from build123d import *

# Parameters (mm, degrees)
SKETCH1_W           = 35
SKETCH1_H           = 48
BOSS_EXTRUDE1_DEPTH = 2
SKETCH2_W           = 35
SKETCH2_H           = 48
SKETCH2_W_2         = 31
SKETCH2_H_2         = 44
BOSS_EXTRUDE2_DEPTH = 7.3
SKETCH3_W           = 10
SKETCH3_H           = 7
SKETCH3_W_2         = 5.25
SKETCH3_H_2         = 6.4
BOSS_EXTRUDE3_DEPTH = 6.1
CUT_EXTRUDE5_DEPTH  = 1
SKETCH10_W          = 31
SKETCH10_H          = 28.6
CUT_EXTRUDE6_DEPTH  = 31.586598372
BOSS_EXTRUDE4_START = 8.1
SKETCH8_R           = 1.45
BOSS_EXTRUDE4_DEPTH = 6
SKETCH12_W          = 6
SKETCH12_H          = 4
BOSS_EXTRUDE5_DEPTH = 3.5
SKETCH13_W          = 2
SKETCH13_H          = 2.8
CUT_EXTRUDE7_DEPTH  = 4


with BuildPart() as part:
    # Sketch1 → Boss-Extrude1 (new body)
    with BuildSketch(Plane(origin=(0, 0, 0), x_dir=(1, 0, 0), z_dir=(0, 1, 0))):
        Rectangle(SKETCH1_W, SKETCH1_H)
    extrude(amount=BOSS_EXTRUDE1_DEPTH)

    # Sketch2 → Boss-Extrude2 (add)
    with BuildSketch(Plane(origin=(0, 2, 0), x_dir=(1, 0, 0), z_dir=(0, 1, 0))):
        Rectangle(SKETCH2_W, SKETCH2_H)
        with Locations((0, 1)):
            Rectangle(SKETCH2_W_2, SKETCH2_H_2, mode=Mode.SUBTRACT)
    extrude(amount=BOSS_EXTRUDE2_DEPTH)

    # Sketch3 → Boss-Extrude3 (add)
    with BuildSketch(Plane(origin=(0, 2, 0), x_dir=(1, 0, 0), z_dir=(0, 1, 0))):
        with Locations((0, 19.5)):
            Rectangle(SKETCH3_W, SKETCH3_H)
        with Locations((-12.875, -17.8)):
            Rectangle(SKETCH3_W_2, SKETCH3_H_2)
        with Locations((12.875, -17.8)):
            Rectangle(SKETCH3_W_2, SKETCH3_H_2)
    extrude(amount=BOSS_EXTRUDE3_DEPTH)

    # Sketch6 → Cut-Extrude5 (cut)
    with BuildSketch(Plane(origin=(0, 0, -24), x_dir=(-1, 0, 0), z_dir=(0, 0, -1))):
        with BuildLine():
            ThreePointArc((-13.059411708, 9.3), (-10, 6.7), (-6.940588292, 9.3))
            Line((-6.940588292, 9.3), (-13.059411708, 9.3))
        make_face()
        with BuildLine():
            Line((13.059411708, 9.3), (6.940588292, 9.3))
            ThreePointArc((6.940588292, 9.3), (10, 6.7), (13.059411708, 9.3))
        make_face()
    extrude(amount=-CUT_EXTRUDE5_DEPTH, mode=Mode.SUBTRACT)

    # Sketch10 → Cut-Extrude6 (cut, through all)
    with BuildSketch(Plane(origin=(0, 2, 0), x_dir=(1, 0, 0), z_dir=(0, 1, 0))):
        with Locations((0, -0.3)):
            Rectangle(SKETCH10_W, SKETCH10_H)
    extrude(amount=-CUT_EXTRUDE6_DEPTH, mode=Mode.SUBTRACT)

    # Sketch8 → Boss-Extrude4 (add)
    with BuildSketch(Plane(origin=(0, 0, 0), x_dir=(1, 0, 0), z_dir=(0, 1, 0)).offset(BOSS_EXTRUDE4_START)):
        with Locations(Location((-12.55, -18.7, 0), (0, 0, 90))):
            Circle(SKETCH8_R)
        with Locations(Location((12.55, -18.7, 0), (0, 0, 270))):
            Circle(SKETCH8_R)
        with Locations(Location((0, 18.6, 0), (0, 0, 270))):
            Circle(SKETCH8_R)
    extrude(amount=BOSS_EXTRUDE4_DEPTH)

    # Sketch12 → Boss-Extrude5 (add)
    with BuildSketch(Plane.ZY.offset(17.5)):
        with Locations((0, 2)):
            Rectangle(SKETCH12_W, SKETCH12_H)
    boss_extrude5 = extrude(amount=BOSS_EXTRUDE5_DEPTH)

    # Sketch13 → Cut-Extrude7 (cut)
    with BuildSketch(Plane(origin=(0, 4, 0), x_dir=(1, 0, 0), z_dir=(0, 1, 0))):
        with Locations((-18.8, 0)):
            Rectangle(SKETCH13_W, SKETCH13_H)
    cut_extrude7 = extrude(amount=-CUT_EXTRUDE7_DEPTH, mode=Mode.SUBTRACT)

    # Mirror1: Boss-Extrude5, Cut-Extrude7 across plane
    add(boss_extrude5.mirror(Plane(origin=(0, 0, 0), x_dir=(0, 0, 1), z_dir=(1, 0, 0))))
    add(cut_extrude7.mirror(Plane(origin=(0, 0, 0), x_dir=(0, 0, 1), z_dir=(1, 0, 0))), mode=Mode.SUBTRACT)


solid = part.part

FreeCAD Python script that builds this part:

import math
import FreeCAD as App
import Part
import Sketcher
from FreeCAD import Vector
Q = App.Units.Quantity

doc = App.newDocument("Part")
body = doc.addObject("PartDesign::Body", "Body")

# Sketch on XZ plane
sketch1 = body.newObject("Sketcher::SketchObject", "Sketch")
sketch1.AttachmentSupport = (doc.getObject("XZ_Plane"), [""])
sketch1.MapMode = "FlatFace"
sketch1.addGeometry(Part.LineSegment(Vector(-18, -24, 0), Vector(-18, 24, 0)), False)
sketch1.addGeometry(Part.LineSegment(Vector(-18, 24, 0), Vector(18, 24, 0)), False)
sketch1.addGeometry(Part.LineSegment(Vector(18, 24, 0), Vector(18, -24, 0)), False)
sketch1.addGeometry(Part.LineSegment(Vector(18, -24, 0), Vector(-18, -24, 0)), False)
sketch1.addConstraint(Sketcher.Constraint("Coincident", 0, 2, 1, 1))
sketch1.addConstraint(Sketcher.Constraint("Coincident", 1, 2, 2, 1))
sketch1.addConstraint(Sketcher.Constraint("Coincident", 2, 2, 3, 1))
sketch1.addConstraint(Sketcher.Constraint("Coincident", 3, 2, 0, 1))
sketch1.addConstraint(Sketcher.Constraint("Vertical", 0))
sketch1.addConstraint(Sketcher.Constraint("Horizontal", 1))
sketch1.addConstraint(Sketcher.Constraint("Vertical", 2))
sketch1.addConstraint(Sketcher.Constraint("Horizontal", 3))
sketch1.addConstraint(Sketcher.Constraint("Symmetric", 0, 2, 2, 2, -1, 1))
sketch1.addConstraint(Sketcher.Constraint("DistanceX", 1, 1, 1, 2, Q("35 mm")))
sketch1.addConstraint(Sketcher.Constraint("DistanceY", 0, 1, 0, 2, Q("48 mm")))
pad1 = body.newObject("PartDesign::Pad", "Pad")
pad1.Profile = sketch1
pad1.Length = 2
pad1.Reversed = True

# Sketch on XZ plane
sketch2 = body.newObject("Sketcher::SketchObject", "Sketch001")
sketch2.AttachmentSupport = (doc.getObject("XZ_Plane"), [""])
sketch2.MapMode = "FlatFace"
sketch2.AttachmentOffset = App.Placement(Vector(0, 0, -2), App.Rotation())
sketch2.addGeometry(Part.LineSegment(Vector(-18, -24, 0), Vector(-18, 24, 0)), False)
sketch2.addGeometry(Part.LineSegment(Vector(-18, 24, 0), Vector(18, 24, 0)), False)
sketch2.addGeometry(Part.LineSegment(Vector(18, 24, 0), Vector(18, -24, 0)), False)
sketch2.addGeometry(Part.LineSegment(Vector(18, -24, 0), Vector(-18, -24, 0)), False)
sketch2.addGeometry(Part.LineSegment(Vector(16, 21, 0), Vector(-16, 21, 0)), False)
sketch2.addGeometry(Part.LineSegment(Vector(-16, 21, 0), Vector(-16, -23, 0)), False)
sketch2.addGeometry(Part.LineSegment(Vector(-16, -23, 0), Vector(16, -23, 0)), False)
sketch2.addGeometry(Part.LineSegment(Vector(16, -23, 0), Vector(16, 21, 0)), False)
sketch2.addConstraint(Sketcher.Constraint("Coincident", 0, 2, 1, 1))
sketch2.addConstraint(Sketcher.Constraint("Coincident", 1, 2, 2, 1))
sketch2.addConstraint(Sketcher.Constraint("Coincident", 2, 2, 3, 1))
sketch2.addConstraint(Sketcher.Constraint("Coincident", 3, 2, 0, 1))
sketch2.addConstraint(Sketcher.Constraint("Coincident", 4, 2, 5, 1))
sketch2.addConstraint(Sketcher.Constraint("Coincident", 5, 2, 6, 1))
sketch2.addConstraint(Sketcher.Constraint("Coincident", 6, 2, 7, 1))
sketch2.addConstraint(Sketcher.Constraint("Coincident", 7, 2, 4, 1))
sketch2.addConstraint(Sketcher.Constraint("Vertical", 0))
sketch2.addConstraint(Sketcher.Constraint("Horizontal", 1))
sketch2.addConstraint(Sketcher.Constraint("Vertical", 2))
sketch2.addConstraint(Sketcher.Constraint("Horizontal", 3))
sketch2.addConstraint(Sketcher.Constraint("Horizontal", 4))
sketch2.addConstraint(Sketcher.Constraint("Vertical", 5))
sketch2.addConstraint(Sketcher.Constraint("Horizontal", 6))
sketch2.addConstraint(Sketcher.Constraint("Vertical", 7))
sketch2.addConstraint(Sketcher.Constraint("Symmetric", 0, 2, 2, 2, -1, 1))
sketch2.addConstraint(Sketcher.Constraint("DistanceX", 1, 1, 1, 2, Q("35 mm")))
sketch2.addConstraint(Sketcher.Constraint("DistanceX", 4, 2, 4, 1, Q("31 mm")))
sketch2.addConstraint(Sketcher.Constraint("DistanceY", 0, 1, 0, 2, Q("48 mm")))
sketch2.addConstraint(Sketcher.Constraint("DistanceY", 5, 2, 5, 1, Q("44 mm")))
sketch2.addConstraint(Sketcher.Constraint("DistanceY", -1, 1, 4, 2, Q("21 mm")))
sketch2.addConstraint(Sketcher.Constraint("DistanceX", 0, 2, 4, 2, Q("2 mm")))
pad2 = body.newObject("PartDesign::Pad", "Pad001")
pad2.Profile = sketch2
pad2.Length = 7.3
pad2.Reversed = True

# Sketch on XZ plane
sketch3 = body.newObject("Sketcher::SketchObject", "Sketch002")
sketch3.AttachmentSupport = (doc.getObject("XZ_Plane"), [""])
sketch3.MapMode = "FlatFace"
sketch3.AttachmentOffset = App.Placement(Vector(0, 0, -2), App.Rotation())
sketch3.addGeometry(Part.LineSegment(Vector(-5, -23, 0), Vector(-5, -16, 0)), False)
sketch3.addGeometry(Part.LineSegment(Vector(-5, -16, 0), Vector(5, -16, 0)), False)
sketch3.addGeometry(Part.LineSegment(Vector(5, -16, 0), Vector(5, -23, 0)), False)
sketch3.addGeometry(Part.LineSegment(Vector(5, -23, 0), Vector(-5, -23, 0)), False)
sketch3.addGeometry(Part.LineSegment(Vector(-16, 15, 0), Vector(-16, 21, 0)), False)
sketch3.addGeometry(Part.LineSegment(Vector(-16, 21, 0), Vector(-10, 21, 0)), False)
sketch3.addGeometry(Part.LineSegment(Vector(-10, 21, 0), Vector(-10, 15, 0)), False)
sketch3.addGeometry(Part.LineSegment(Vector(-10, 15, 0), Vector(-16, 15, 0)), False)
sketch3.addGeometry(Part.LineSegment(Vector(10, 15, 0), Vector(10, 21, 0)), False)
sketch3.addGeometry(Part.LineSegment(Vector(10, 21, 0), Vector(16, 21, 0)), False)
sketch3.addGeometry(Part.LineSegment(Vector(16, 21, 0), Vector(16, 15, 0)), False)
sketch3.addGeometry(Part.LineSegment(Vector(16, 15, 0), Vector(10, 15, 0)), False)
sketch3.addConstraint(Sketcher.Constraint("Coincident", 0, 2, 1, 1))
sketch3.addConstraint(Sketcher.Constraint("Coincident", 1, 2, 2, 1))
sketch3.addConstraint(Sketcher.Constraint("Coincident", 2, 2, 3, 1))
sketch3.addConstraint(Sketcher.Constraint("Coincident", 3, 2, 0, 1))
sketch3.addConstraint(Sketcher.Constraint("Coincident", 4, 2, 5, 1))
sketch3.addConstraint(Sketcher.Constraint("Coincident", 5, 2, 6, 1))
sketch3.addConstraint(Sketcher.Constraint("Coincident", 6, 2, 7, 1))
sketch3.addConstraint(Sketcher.Constraint("Coincident", 7, 2, 4, 1))
sketch3.addConstraint(Sketcher.Constraint("Coincident", 8, 2, 9, 1))
sketch3.addConstraint(Sketcher.Constraint("Coincident", 9, 2, 10, 1))
sketch3.addConstraint(Sketcher.Constraint("Coincident", 10, 2, 11, 1))
sketch3.addConstraint(Sketcher.Constraint("Coincident", 11, 2, 8, 1))
sketch3.addConstraint(Sketcher.Constraint("Vertical", 0))
sketch3.addConstraint(Sketcher.Constraint("Horizontal", 1))
sketch3.addConstraint(Sketcher.Constraint("Vertical", 2))
sketch3.addConstraint(Sketcher.Constraint("Horizontal", 3))
sketch3.addConstraint(Sketcher.Constraint("Vertical", 4))
sketch3.addConstraint(Sketcher.Constraint("Horizontal", 5))
sketch3.addConstraint(Sketcher.Constraint("Vertical", 6))
sketch3.addConstraint(Sketcher.Constraint("Horizontal", 7))
sketch3.addConstraint(Sketcher.Constraint("Vertical", 8))
sketch3.addConstraint(Sketcher.Constraint("Horizontal", 9))
sketch3.addConstraint(Sketcher.Constraint("Vertical", 10))
sketch3.addConstraint(Sketcher.Constraint("Horizontal", 11))
sketch3.addConstraint(Sketcher.Constraint("Symmetric", 5, 2, 8, 2, -2))
sketch3.addConstraint(Sketcher.Constraint("Symmetric", 7, 2, 10, 2, -2))
sketch3.addConstraint(Sketcher.Constraint("DistanceX", 1, 1, 1, 2, Q("10 mm")))
sketch3.addConstraint(Sketcher.Constraint("DistanceY", 0, 1, 0, 2, Q("7 mm")))
sketch3.addConstraint(Sketcher.Constraint("DistanceY", 4, 1, 4, 2, Q("6.4 mm")))
sketch3.addConstraint(Sketcher.Constraint("DistanceX", 0, 2, -1, 1, Q("5 mm")))
sketch3.addConstraint(Sketcher.Constraint("DistanceY", 0, 2, -1, 1, Q("16 mm")))
sketch3.addConstraint(Sketcher.Constraint("DistanceY", -1, 1, 4, 2, Q("21 mm")))
sketch3.addConstraint(Sketcher.Constraint("DistanceX", 4, 2, 9, 2, Q("31 mm")))
sketch3.addConstraint(Sketcher.Constraint("DistanceX", 5, 1, 5, 2, Q("5.25 mm")))
pad3 = body.newObject("PartDesign::Pad", "Pad002")
pad3.Profile = sketch3
pad3.Length = 6.1
pad3.Reversed = True

# Sketch on XY plane
sketch4 = body.newObject("Sketcher::SketchObject", "Sketch003")
sketch4.AttachmentSupport = (doc.getObject("XY_Plane"), [""])
sketch4.MapMode = "FlatFace"
sketch4.AttachmentOffset = App.Placement(Vector(0, 0, -24), App.Rotation())
sketch4.addGeometry(Part.ArcOfCircle(Part.Circle(Vector(10, 9.8, 0), Vector(0, 0, 1), 3.1), math.radians(-171), math.radians(-9)), False)
sketch4.addGeometry(Part.LineSegment(Vector(6.9, 9.3, 0), Vector(13.1, 9.3, 0)), False)
sketch4.addGeometry(Part.LineSegment(Vector(-13.1, 9.3, 0), Vector(-6.9, 9.3, 0)), False)
sketch4.addGeometry(Part.ArcOfCircle(Part.Circle(Vector(-10, 9.8, 0), Vector(0, 0, 1), 3.1), math.radians(-171), math.radians(-9)), False)
sketch4.addConstraint(Sketcher.Constraint("Coincident", 0, 1, 1, 1))
sketch4.addConstraint(Sketcher.Constraint("Coincident", 1, 2, 0, 2))
sketch4.addConstraint(Sketcher.Constraint("Coincident", 2, 1, 3, 1))
sketch4.addConstraint(Sketcher.Constraint("Coincident", 3, 2, 2, 2))
sketch4.addConstraint(Sketcher.Constraint("Horizontal", 1))
sketch4.addConstraint(Sketcher.Constraint("Horizontal", 2))
sketch4.addConstraint(Sketcher.Constraint("Equal", 0, 3))
sketch4.addConstraint(Sketcher.Constraint("Symmetric", 0, 3, 3, 3, -2))
sketch4.addConstraint(Sketcher.Constraint("Horizontal", 1, 2, 2, 1))
sketch4.addConstraint(Sketcher.Constraint("Radius", 0, Q("3.1 mm")))
sketch4.addConstraint(Sketcher.Constraint("DistanceX", -1, 1, 0, 3, Q("10 mm")))
sketch4.addConstraint(Sketcher.Constraint("DistanceY", -1, 1, 0, 3, Q("9.8 mm")))
sketch4.addConstraint(Sketcher.Constraint("DistanceY", -1, 1, 0, 1, Q("9.3 mm")))
pocket1 = body.newObject("PartDesign::Pocket", "Pocket")
pocket1.Profile = sketch4
pocket1.Length = 1
pocket1.Reversed = True

# Sketch on XZ plane
sketch5 = body.newObject("Sketcher::SketchObject", "Sketch004")
sketch5.AttachmentSupport = (doc.getObject("XZ_Plane"), [""])
sketch5.MapMode = "FlatFace"
sketch5.AttachmentOffset = App.Placement(Vector(0, 0, -2), App.Rotation())
sketch5.addGeometry(Part.LineSegment(Vector(-16, -14, 0), Vector(-16, 15, 0)), False)
sketch5.addGeometry(Part.LineSegment(Vector(-16, 15, 0), Vector(16, 15, 0)), False)
sketch5.addGeometry(Part.LineSegment(Vector(16, 15, 0), Vector(16, -14, 0)), False)
sketch5.addGeometry(Part.LineSegment(Vector(16, -14, 0), Vector(-16, -14, 0)), False)
sketch5.addConstraint(Sketcher.Constraint("Coincident", 0, 2, 1, 1))
sketch5.addConstraint(Sketcher.Constraint("Coincident", 1, 2, 2, 1))
sketch5.addConstraint(Sketcher.Constraint("Coincident", 2, 2, 3, 1))
sketch5.addConstraint(Sketcher.Constraint("Coincident", 3, 2, 0, 1))
sketch5.addConstraint(Sketcher.Constraint("Vertical", 0))
sketch5.addConstraint(Sketcher.Constraint("Horizontal", 1))
sketch5.addConstraint(Sketcher.Constraint("Vertical", 2))
sketch5.addConstraint(Sketcher.Constraint("Horizontal", 3))
sketch5.addConstraint(Sketcher.Constraint("DistanceX", 1, 1, 1, 2, Q("31 mm")))
sketch5.addConstraint(Sketcher.Constraint("DistanceY", 0, 1, 0, 2, Q("28.6 mm")))
sketch5.addConstraint(Sketcher.Constraint("DistanceY", 2, 2, -1, 1, Q("14 mm")))
sketch5.addConstraint(Sketcher.Constraint("DistanceX", 0, 2, -1, 1, Q("15.5 mm")))
pocket2 = body.newObject("PartDesign::Pocket", "Pocket001")
pocket2.Profile = sketch5
pocket2.Type = "ThroughAll"
pocket2.Reversed = True

# Sketch on XZ plane
sketch6 = body.newObject("Sketcher::SketchObject", "Sketch005")
sketch6.AttachmentSupport = (doc.getObject("XZ_Plane"), [""])
sketch6.MapMode = "FlatFace"
sketch6.AttachmentOffset = App.Placement(Vector(0, 0, -8.1), App.Rotation())
sketch6.addGeometry(Part.Circle(Vector(-12.6, 18.7, 0), Vector(0, 0, 1), 1.4), False)
sketch6.addGeometry(Part.Circle(Vector(12.6, 18.7, 0), Vector(0, 0, 1), 1.4), False)
sketch6.addGeometry(Part.Circle(Vector(0, -18.6, 0), Vector(0, 0, 1), 1.4), False)
sketch6.addConstraint(Sketcher.Constraint("Equal", 0, 1))
sketch6.addConstraint(Sketcher.Constraint("Equal", 1, 2))
sketch6.addConstraint(Sketcher.Constraint("Symmetric", 0, 3, 1, 3, -2))
sketch6.addConstraint(Sketcher.Constraint("PointOnObject", 2, 3, -2))
sketch6.addConstraint(Sketcher.Constraint("Diameter", 0, Q("2.9 mm")))
sketch6.addConstraint(Sketcher.Constraint("DistanceY", -1, 1, 0, 3, Q("18.7 mm")))
sketch6.addConstraint(Sketcher.Constraint("DistanceY", 2, 3, -1, 1, Q("18.6 mm")))
sketch6.addConstraint(Sketcher.Constraint("DistanceX", 0, 3, 1, 3, Q("25.1 mm")))
pad4 = body.newObject("PartDesign::Pad", "Pad003")
pad4.Profile = sketch6
pad4.Length = 6
pad4.Reversed = True

# Sketch on YZ plane
sketch7 = body.newObject("Sketcher::SketchObject", "Sketch006")
sketch7.AttachmentSupport = (doc.getObject("YZ_Plane"), [""])
sketch7.MapMode = "FlatFace"
sketch7.AttachmentOffset = App.Placement(Vector(0, 0, -17.5), App.Rotation())
sketch7.addGeometry(Part.LineSegment(Vector(4, -3, 0), Vector(0, -3, 0)), False)
sketch7.addGeometry(Part.LineSegment(Vector(0, -3, 0), Vector(0, 3, 0)), False)
sketch7.addGeometry(Part.LineSegment(Vector(0, 3, 0), Vector(4, 3, 0)), False)
sketch7.addGeometry(Part.LineSegment(Vector(4, 3, 0), Vector(4, -3, 0)), False)
sketch7.addConstraint(Sketcher.Constraint("Coincident", 0, 2, 1, 1))
sketch7.addConstraint(Sketcher.Constraint("Coincident", 1, 2, 2, 1))
sketch7.addConstraint(Sketcher.Constraint("Coincident", 2, 2, 3, 1))
sketch7.addConstraint(Sketcher.Constraint("Coincident", 3, 2, 0, 1))
sketch7.addConstraint(Sketcher.Constraint("Horizontal", 0))
sketch7.addConstraint(Sketcher.Constraint("Vertical", 1))
sketch7.addConstraint(Sketcher.Constraint("Horizontal", 2))
sketch7.addConstraint(Sketcher.Constraint("Vertical", 3))
sketch7.addConstraint(Sketcher.Constraint("Symmetric", 0, 2, 1, 2, -1, 1))
sketch7.addConstraint(Sketcher.Constraint("DistanceX", 0, 2, 0, 1, Q("4 mm")))
sketch7.addConstraint(Sketcher.Constraint("DistanceY", 1, 1, 1, 2, Q("6 mm")))
pad5 = body.newObject("PartDesign::Pad", "Pad004")
pad5.Profile = sketch7
pad5.Length = 3.5
pad5.Reversed = True

# Sketch on XZ plane
sketch8 = body.newObject("Sketcher::SketchObject", "Sketch007")
sketch8.AttachmentSupport = (doc.getObject("XZ_Plane"), [""])
sketch8.MapMode = "FlatFace"
sketch8.AttachmentOffset = App.Placement(Vector(0, 0, -4), App.Rotation())
sketch8.addGeometry(Part.LineSegment(Vector(-19.8, -1.4, 0), Vector(-19.8, 1.4, 0)), False)
sketch8.addGeometry(Part.LineSegment(Vector(-19.8, 1.4, 0), Vector(-17.8, 1.4, 0)), False)
sketch8.addGeometry(Part.LineSegment(Vector(-17.8, 1.4, 0), Vector(-17.8, -1.4, 0)), False)
sketch8.addGeometry(Part.LineSegment(Vector(-17.8, -1.4, 0), Vector(-19.8, -1.4, 0)), False)
sketch8.addConstraint(Sketcher.Constraint("Coincident", 0, 2, 1, 1))
sketch8.addConstraint(Sketcher.Constraint("Coincident", 1, 2, 2, 1))
sketch8.addConstraint(Sketcher.Constraint("Coincident", 2, 2, 3, 1))
sketch8.addConstraint(Sketcher.Constraint("Coincident", 3, 2, 0, 1))
sketch8.addConstraint(Sketcher.Constraint("Vertical", 0))
sketch8.addConstraint(Sketcher.Constraint("Horizontal", 1))
sketch8.addConstraint(Sketcher.Constraint("Vertical", 2))
sketch8.addConstraint(Sketcher.Constraint("Horizontal", 3))
sketch8.addConstraint(Sketcher.Constraint("DistanceX", 1, 1, 1, 2, Q("2 mm")))
sketch8.addConstraint(Sketcher.Constraint("DistanceY", 0, 1, 0, 2, Q("2.8 mm")))
sketch8.addConstraint(Sketcher.Constraint("DistanceX", 0, 2, -1, 1, Q("19.8 mm")))
sketch8.addConstraint(Sketcher.Constraint("DistanceY", -1, 1, 0, 2, Q("1.4 mm")))
pocket3 = body.newObject("PartDesign::Pocket", "Pocket002")
pocket3.Profile = sketch8
pocket3.Length = 4
pocket3.Reversed = True
doc.recompute()

mirrored = body.newObject("PartDesign::Mirrored", "Mirrored")
mirrored.Originals = [pad5, pocket3]
mirrored.MirrorPlane = (doc.getObject("YZ_Plane"), [""])
body.Tip = mirrored

doc.recompute()
